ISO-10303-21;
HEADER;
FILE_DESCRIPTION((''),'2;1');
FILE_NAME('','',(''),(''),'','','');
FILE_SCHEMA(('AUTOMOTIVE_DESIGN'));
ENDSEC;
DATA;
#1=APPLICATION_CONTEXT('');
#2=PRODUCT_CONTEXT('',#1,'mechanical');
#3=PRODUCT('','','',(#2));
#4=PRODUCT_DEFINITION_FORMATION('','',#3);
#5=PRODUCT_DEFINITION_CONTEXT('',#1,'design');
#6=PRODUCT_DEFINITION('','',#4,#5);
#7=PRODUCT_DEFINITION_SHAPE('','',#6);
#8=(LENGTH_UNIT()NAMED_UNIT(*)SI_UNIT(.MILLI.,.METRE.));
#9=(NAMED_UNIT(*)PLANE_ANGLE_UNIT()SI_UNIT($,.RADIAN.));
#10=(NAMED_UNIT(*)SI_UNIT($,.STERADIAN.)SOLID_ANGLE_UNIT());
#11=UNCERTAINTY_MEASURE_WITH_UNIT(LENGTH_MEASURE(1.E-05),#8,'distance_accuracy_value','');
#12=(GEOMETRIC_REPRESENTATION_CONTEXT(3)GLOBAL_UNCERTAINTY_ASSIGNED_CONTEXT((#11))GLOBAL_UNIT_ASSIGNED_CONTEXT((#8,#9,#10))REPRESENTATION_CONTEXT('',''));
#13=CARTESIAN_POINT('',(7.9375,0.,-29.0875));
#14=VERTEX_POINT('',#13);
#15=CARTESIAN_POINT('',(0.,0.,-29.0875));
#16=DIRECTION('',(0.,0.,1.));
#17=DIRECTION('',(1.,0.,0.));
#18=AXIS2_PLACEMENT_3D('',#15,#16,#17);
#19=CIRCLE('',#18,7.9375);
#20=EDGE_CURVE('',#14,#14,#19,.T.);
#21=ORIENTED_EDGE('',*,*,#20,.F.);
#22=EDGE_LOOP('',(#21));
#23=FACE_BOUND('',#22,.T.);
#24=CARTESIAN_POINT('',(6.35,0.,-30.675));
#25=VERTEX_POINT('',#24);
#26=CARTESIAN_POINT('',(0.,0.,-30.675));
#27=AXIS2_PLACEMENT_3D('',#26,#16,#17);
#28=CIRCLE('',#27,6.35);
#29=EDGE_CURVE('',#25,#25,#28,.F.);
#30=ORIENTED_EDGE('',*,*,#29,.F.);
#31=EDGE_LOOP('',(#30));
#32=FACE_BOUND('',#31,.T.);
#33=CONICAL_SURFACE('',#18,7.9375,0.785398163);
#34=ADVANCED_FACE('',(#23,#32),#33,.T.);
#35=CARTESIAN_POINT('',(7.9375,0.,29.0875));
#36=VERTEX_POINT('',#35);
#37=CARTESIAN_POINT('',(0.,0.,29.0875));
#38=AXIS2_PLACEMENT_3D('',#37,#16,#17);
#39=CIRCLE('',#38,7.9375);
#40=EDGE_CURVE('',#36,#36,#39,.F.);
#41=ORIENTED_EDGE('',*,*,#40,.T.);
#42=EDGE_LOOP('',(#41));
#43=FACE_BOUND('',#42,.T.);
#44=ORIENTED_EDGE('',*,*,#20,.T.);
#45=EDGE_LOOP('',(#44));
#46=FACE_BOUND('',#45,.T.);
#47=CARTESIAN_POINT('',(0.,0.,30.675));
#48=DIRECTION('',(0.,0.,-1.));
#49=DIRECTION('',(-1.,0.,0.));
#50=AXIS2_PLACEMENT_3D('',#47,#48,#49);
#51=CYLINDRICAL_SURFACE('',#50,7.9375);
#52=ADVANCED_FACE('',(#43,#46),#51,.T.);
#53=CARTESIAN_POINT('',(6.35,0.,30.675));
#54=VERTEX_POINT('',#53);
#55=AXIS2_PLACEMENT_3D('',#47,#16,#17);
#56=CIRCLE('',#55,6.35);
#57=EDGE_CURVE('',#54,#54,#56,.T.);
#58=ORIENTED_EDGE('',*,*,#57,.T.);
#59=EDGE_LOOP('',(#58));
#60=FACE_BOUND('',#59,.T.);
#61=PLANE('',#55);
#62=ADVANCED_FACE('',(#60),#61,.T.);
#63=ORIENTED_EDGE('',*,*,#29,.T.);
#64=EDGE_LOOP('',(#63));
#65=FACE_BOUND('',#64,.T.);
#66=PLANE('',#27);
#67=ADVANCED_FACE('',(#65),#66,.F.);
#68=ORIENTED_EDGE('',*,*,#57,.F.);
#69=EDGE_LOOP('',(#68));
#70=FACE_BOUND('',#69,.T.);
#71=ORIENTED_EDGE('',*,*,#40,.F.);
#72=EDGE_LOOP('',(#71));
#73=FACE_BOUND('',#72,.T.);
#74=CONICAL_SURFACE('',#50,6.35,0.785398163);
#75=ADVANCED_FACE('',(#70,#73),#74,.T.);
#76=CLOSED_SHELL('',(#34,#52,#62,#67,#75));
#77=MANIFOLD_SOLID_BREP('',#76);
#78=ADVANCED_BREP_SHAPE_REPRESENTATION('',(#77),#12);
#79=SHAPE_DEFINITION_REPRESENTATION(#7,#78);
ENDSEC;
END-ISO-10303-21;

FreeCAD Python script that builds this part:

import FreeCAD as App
import Part
import Sketcher
from FreeCAD import Vector
Q = App.Units.Quantity


def edges_at(feature, points):
    """Names of the edges that pass closest to the given points."""
    edges = feature.Shape.Edges
    near = lambda p: min(range(len(edges)), key=lambda i: edges[i].distToShape(Part.Vertex(*p))[0])
    return sorted({f"Edge{near(p) + 1}" for p in points})

doc = App.newDocument("Part")
body = doc.addObject("PartDesign::Body", "Body")

# Sketch on XY plane
sketch1 = body.newObject("Sketcher::SketchObject", "Sketch")
sketch1.AttachmentSupport = (doc.getObject("XY_Plane"), [""])
sketch1.MapMode = "FlatFace"
sketch1.addGeometry(Part.Circle(Vector(0, 0, 0), Vector(0, 0, 1), 7.9375), False)
sketch1.addConstraint(Sketcher.Constraint("Coincident", 0, 3, -1, 1))
sketch1.addConstraint(Sketcher.Constraint("Diameter", 0, Q("0.625 in")))
pad1 = body.newObject("PartDesign::Pad", "Pad")
pad1.Profile = sketch1
pad1.Length = 61.35
pad1.Midplane = True
doc.recompute()

chamfer = body.newObject("PartDesign::Chamfer", "Chamfer")
chamfer.Base = (pad1, edges_at(pad1, [(-7.938, 0, -30.675), (-7.938, 0, 30.675)]))
chamfer.Size = Q("0.0625 in")

doc.recompute()
